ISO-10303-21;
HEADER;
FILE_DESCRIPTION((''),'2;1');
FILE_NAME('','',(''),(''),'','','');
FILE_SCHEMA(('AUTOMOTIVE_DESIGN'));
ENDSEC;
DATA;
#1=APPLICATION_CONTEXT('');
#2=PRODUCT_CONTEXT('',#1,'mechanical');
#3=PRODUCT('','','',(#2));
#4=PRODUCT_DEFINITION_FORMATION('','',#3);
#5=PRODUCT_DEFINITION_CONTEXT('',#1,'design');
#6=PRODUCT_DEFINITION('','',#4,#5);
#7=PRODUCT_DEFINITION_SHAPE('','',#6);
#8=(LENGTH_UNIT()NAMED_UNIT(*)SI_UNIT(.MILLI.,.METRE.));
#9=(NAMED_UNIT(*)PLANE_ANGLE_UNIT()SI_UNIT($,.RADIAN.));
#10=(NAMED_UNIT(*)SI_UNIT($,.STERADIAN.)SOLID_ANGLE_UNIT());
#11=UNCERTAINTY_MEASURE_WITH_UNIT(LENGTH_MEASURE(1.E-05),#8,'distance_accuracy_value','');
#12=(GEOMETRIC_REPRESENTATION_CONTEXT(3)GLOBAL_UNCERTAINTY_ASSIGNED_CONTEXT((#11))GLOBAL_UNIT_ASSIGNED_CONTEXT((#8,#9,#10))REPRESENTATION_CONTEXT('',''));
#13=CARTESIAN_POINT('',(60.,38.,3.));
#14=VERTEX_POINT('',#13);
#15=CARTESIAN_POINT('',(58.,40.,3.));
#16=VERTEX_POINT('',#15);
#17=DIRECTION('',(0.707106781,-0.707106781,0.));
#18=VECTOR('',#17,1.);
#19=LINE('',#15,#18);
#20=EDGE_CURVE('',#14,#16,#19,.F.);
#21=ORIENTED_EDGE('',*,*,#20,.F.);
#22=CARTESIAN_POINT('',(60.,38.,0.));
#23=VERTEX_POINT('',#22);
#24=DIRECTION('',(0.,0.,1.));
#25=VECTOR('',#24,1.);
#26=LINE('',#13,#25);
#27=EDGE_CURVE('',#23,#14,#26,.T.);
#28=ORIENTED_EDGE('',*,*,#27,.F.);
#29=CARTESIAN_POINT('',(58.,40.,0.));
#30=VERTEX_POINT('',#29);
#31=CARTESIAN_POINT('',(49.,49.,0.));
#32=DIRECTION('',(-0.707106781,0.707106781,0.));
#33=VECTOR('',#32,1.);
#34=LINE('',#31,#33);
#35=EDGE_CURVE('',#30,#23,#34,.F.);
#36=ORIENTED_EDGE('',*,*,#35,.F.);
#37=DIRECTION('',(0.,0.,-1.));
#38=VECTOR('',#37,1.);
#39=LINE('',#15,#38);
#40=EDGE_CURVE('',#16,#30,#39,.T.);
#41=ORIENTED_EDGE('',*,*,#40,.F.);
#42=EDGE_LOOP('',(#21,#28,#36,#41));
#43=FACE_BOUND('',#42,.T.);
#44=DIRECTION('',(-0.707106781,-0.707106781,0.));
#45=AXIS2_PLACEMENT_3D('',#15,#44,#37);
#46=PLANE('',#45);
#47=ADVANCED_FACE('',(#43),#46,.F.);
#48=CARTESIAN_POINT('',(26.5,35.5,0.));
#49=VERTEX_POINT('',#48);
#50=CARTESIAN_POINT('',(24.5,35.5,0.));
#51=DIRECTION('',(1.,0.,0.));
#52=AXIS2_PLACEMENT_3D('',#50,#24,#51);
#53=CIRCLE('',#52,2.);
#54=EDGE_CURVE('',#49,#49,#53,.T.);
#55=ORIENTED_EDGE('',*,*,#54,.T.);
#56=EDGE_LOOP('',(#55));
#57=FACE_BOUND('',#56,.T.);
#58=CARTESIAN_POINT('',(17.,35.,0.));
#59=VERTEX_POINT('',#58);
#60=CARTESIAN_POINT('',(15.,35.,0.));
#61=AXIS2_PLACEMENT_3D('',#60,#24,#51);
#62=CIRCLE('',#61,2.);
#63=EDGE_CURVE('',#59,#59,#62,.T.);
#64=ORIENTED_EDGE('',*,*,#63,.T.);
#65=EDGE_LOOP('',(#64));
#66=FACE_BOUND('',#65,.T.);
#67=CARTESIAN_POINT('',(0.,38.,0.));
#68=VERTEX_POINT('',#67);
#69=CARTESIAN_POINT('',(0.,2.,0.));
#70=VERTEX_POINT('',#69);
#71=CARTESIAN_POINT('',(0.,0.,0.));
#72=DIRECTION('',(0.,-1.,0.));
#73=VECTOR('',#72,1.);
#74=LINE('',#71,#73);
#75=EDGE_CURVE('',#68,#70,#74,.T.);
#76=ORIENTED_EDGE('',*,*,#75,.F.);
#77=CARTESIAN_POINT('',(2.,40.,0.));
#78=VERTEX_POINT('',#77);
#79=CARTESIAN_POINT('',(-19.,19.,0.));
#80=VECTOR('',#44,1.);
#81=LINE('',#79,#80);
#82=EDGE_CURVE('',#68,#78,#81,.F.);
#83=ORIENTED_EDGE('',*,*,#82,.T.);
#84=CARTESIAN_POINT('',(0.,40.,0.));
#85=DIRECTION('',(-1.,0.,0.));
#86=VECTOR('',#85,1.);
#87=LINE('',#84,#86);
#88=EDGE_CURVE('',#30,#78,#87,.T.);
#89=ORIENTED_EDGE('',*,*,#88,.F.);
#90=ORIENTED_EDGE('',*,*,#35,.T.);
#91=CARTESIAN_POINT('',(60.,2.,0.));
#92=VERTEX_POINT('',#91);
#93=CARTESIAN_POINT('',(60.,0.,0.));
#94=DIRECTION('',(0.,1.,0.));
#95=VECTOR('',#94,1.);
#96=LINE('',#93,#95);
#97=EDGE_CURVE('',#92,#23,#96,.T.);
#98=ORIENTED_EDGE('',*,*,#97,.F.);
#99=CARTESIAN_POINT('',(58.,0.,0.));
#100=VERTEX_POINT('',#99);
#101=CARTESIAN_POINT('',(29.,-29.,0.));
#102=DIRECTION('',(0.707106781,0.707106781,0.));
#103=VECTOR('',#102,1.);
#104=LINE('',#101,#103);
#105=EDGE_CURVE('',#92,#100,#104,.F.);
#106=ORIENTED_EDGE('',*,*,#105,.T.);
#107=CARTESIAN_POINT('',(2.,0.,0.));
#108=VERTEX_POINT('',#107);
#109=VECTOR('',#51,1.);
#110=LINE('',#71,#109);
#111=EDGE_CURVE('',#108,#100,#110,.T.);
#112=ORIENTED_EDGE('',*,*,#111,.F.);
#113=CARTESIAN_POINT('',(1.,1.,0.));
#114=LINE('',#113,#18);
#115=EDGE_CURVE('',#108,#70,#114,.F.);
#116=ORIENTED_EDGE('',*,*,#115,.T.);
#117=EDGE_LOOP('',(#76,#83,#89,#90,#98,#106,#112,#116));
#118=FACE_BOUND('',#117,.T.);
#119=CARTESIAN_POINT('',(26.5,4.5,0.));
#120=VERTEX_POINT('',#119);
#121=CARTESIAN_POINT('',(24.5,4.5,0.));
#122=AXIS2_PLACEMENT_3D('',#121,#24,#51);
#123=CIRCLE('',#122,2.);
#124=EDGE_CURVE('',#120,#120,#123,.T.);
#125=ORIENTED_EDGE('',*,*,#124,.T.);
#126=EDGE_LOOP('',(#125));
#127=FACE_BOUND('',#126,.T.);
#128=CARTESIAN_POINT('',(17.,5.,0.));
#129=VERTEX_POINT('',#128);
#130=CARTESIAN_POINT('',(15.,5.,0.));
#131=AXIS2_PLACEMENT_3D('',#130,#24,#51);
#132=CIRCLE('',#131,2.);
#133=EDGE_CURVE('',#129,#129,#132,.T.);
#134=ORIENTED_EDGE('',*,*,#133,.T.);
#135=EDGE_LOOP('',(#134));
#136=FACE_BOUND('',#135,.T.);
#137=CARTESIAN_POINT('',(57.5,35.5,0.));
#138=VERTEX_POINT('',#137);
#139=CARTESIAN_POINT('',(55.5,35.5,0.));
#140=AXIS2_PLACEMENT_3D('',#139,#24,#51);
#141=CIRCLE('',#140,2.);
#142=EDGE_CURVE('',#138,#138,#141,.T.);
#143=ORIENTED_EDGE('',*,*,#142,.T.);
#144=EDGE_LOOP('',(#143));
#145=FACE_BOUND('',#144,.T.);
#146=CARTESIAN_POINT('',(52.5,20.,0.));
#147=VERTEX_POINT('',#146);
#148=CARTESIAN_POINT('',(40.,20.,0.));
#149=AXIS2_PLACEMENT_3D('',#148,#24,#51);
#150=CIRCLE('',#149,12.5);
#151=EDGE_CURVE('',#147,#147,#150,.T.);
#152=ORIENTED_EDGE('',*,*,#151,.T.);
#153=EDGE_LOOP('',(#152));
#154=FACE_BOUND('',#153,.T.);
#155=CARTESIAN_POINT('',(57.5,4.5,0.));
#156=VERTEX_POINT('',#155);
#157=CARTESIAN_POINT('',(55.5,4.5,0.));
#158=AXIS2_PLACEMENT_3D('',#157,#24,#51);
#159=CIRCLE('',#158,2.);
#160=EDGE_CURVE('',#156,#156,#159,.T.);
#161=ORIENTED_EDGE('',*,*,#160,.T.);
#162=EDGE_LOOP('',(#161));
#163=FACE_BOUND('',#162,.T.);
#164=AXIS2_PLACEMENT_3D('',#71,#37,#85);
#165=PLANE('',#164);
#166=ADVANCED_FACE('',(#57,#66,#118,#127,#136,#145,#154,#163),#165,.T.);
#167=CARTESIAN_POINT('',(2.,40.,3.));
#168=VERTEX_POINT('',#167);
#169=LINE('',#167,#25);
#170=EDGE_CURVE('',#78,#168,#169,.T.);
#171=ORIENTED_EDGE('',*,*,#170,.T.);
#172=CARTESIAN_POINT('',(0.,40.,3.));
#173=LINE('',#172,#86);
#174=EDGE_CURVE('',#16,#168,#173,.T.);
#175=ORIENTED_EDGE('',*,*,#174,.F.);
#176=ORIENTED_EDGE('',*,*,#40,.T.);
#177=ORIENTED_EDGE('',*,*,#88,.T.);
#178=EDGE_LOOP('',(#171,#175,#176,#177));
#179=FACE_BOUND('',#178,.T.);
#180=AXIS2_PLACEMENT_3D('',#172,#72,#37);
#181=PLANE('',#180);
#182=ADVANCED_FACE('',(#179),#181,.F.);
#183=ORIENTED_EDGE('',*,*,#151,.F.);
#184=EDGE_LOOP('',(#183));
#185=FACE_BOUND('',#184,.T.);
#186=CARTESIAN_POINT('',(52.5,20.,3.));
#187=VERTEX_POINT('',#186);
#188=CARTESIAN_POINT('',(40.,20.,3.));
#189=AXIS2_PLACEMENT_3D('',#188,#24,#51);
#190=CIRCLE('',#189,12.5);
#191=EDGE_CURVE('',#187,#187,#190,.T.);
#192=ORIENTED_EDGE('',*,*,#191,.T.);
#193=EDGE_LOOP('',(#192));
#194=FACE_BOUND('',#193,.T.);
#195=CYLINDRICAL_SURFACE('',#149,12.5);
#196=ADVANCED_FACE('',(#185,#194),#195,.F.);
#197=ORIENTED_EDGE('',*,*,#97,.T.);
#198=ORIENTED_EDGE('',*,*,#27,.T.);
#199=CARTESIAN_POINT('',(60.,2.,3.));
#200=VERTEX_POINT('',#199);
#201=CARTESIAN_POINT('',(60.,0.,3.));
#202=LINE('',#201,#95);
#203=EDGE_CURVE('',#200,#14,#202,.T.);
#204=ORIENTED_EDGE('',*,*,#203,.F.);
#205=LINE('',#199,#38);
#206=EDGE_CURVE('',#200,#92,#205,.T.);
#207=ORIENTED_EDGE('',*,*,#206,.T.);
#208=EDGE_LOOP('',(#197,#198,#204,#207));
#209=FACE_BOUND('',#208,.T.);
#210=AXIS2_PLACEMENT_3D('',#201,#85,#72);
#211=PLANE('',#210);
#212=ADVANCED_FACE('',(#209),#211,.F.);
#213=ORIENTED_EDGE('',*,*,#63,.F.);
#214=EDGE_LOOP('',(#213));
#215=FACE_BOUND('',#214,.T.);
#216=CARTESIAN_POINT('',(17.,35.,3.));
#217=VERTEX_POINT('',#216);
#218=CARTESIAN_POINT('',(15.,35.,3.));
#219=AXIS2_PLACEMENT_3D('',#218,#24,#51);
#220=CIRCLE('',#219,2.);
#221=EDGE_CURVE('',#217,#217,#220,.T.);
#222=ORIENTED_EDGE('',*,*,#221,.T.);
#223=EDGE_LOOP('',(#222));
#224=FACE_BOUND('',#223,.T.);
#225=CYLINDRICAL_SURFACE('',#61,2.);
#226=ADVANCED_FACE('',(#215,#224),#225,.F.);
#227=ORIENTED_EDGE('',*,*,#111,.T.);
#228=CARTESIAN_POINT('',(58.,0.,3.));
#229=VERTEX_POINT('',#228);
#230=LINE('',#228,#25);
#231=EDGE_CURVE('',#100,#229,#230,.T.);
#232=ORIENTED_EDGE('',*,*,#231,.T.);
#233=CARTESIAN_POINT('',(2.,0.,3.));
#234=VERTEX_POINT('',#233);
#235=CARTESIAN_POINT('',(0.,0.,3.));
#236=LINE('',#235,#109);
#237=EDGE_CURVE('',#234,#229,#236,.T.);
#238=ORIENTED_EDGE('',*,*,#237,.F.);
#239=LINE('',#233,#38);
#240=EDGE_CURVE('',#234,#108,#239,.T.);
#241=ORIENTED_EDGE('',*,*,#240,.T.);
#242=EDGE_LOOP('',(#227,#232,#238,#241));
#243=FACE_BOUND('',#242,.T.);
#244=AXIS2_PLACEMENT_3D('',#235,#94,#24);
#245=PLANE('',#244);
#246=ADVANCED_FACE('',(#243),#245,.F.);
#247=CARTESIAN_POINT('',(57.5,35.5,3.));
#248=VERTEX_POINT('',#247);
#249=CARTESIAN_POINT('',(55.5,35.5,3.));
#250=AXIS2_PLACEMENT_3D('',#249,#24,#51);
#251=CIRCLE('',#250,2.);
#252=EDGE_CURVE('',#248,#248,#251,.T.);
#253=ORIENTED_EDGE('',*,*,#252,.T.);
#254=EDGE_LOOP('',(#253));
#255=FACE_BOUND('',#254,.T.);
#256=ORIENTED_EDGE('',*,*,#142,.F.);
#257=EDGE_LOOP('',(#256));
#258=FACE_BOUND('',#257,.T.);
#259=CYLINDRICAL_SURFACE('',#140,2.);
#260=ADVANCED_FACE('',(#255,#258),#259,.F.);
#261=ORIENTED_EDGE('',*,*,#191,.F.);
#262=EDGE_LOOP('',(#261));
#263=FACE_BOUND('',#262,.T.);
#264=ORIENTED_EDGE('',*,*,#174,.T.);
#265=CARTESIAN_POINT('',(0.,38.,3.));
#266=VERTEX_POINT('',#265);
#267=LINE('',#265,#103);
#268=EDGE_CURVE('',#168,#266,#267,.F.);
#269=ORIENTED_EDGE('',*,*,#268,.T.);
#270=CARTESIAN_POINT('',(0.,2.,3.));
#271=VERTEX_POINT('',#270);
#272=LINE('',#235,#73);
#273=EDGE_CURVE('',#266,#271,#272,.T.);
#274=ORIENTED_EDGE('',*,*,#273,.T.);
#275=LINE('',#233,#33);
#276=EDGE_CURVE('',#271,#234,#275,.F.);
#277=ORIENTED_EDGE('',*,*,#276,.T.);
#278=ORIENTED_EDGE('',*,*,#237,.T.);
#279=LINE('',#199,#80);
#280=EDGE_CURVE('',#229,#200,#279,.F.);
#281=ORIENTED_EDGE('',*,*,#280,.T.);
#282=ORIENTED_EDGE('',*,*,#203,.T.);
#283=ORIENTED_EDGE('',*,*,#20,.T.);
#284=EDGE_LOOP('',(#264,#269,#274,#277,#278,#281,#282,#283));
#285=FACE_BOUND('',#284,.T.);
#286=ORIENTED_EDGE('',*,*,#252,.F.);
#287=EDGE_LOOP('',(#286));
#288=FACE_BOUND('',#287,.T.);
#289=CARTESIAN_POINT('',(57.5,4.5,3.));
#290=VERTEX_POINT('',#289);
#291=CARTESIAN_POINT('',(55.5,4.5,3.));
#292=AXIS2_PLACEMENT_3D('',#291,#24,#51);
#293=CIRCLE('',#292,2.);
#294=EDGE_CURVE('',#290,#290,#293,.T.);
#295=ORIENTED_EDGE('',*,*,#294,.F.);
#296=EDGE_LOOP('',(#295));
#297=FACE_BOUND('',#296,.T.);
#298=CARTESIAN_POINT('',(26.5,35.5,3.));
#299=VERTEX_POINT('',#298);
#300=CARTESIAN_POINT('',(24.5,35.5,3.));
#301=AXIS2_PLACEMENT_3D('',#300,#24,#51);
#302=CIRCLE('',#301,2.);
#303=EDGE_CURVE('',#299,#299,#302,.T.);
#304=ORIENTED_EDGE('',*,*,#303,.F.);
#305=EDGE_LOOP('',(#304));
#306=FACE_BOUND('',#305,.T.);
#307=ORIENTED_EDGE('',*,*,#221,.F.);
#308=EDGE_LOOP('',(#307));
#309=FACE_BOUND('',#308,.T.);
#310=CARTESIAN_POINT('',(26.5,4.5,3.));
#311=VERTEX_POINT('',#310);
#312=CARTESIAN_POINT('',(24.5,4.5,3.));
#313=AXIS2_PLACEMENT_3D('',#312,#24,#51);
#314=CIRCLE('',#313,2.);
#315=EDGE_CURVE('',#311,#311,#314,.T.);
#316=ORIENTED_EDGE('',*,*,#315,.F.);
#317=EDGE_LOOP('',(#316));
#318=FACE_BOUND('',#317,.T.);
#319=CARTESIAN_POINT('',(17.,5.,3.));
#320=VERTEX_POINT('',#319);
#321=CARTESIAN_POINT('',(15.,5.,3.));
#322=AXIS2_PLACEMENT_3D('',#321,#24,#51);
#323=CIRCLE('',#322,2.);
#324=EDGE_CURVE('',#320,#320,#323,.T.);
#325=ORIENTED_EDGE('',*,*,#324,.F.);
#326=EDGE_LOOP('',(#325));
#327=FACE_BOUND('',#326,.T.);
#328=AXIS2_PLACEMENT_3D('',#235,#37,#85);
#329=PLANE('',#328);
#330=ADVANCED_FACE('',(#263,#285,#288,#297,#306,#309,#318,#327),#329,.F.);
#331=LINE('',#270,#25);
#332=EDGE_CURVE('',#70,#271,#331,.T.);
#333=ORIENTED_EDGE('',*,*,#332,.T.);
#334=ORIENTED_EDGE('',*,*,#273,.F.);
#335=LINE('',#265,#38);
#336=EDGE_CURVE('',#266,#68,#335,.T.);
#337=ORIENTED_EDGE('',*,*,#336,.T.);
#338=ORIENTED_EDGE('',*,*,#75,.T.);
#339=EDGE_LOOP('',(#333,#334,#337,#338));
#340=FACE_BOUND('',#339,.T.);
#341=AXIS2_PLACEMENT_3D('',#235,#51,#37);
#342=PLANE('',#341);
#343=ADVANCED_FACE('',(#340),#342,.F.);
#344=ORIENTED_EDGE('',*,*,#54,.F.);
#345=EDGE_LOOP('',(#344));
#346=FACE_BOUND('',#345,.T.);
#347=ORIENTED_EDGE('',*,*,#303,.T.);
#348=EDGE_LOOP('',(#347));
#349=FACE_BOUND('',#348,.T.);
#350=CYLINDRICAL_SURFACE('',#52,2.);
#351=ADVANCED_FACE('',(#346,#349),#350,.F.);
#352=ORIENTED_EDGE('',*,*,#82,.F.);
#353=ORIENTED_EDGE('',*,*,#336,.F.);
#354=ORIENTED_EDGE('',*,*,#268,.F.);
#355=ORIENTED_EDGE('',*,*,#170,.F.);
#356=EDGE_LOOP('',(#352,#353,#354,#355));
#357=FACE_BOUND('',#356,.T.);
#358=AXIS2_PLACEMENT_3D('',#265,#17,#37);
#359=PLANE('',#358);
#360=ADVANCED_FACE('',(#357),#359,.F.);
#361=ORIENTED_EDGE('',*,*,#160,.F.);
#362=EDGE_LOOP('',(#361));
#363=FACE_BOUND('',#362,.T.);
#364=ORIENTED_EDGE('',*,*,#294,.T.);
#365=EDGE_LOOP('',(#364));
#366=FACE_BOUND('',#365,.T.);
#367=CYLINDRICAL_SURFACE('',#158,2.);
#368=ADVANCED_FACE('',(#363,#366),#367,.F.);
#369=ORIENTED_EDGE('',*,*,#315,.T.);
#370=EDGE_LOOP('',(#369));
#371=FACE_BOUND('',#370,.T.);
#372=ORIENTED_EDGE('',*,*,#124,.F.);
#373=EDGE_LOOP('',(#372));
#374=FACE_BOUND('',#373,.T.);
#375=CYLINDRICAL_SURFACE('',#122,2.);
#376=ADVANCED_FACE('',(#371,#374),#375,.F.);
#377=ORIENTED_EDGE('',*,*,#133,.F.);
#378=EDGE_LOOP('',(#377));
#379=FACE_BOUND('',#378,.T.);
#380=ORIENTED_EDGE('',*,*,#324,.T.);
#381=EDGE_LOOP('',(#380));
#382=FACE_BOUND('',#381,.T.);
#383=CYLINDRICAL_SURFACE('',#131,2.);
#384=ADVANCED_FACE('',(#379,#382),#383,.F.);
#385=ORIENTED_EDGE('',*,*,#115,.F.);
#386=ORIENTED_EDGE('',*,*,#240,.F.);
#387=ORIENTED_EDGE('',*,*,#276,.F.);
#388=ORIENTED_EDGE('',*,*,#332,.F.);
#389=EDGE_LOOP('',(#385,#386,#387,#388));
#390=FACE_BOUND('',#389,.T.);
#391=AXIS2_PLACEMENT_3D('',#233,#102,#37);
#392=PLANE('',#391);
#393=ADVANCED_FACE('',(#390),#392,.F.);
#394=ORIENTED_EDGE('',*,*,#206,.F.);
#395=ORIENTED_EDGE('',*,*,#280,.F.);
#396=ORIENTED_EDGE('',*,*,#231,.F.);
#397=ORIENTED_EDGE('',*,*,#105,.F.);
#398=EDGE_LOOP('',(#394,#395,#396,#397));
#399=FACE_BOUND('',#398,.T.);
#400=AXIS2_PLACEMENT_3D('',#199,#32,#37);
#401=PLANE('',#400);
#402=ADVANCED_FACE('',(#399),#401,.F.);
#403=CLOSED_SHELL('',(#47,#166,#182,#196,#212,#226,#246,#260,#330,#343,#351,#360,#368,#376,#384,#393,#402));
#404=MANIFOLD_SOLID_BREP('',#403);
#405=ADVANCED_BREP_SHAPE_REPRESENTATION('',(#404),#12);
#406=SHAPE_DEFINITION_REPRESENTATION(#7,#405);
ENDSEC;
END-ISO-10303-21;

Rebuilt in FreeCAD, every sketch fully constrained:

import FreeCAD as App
import Part
import Sketcher

V = App.Vector
Q = App.Units.Quantity


def edges_at(feature, points):
    """Names of the edges that pass closest to the given points."""
    edges = feature.Shape.Edges
    near = lambda p: min(range(len(edges)), key=lambda i: edges[i].distToShape(Part.Vertex(*p))[0])
    return sorted({f"Edge{near(p) + 1}" for p in points})


def add_polygon(sketch, points):
    """Adds a closed chain of lines whose ends are joined by coincident constraints."""
    first, n = sketch.GeometryCount, len(points)
    for a, b in zip(points, points[1:] + points[:1]):
        sketch.addGeometry(Part.LineSegment(App.Vector(*a, 0), App.Vector(*b, 0)), False)
    for i in range(n):
        sketch.addConstraint(Sketcher.Constraint("Coincident", first + i, 2, first + (i + 1) % n, 1))

doc = App.newDocument("Part")
params = doc.addObject("Spreadsheet::Sheet", "Params")
for row, (alias, value) in enumerate([
    ("sketch1_width", "60 mm"),
    ("sketch1_height", "40 mm"),
    ("pad1_length", "3 mm"),
    ("sketch2_diameter", "4 mm"),
    ("sketch2_diameter2", "25 mm"),
    ("chamfer_size", "2 mm"),
], start=1):
    params.set(f"A{row}", alias)
    params.set(f"B{row}", "=" + value)
    params.setAlias(f"B{row}", alias)

body = doc.addObject("PartDesign::Body", "Body")

# Sketch on XY plane
sketch1 = body.newObject("Sketcher::SketchObject", "Sketch")
sketch1.AttachmentSupport = (doc.getObject("XY_Plane"), [""])
sketch1.MapMode = "FlatFace"
add_polygon(sketch1, [(0, 40), (0, 0), (60, 0), (60, 40)])  # lines 0-3
sketch1.addConstraint(Sketcher.Constraint("Vertical", 0))
sketch1.addConstraint(Sketcher.Constraint("Horizontal", 1))
sketch1.addConstraint(Sketcher.Constraint("Vertical", 2))
sketch1.addConstraint(Sketcher.Constraint("Horizontal", 3))
sketch1.addConstraint(Sketcher.Constraint("Coincident", 0, 2, -1, 1))
sketch1.addConstraint(Sketcher.Constraint("DistanceX", 1, 1, 1, 2, Q("60 mm")))
sketch1.addConstraint(Sketcher.Constraint("DistanceY", 0, 2, 0, 1, Q("40 mm")))
sketch1.setExpression("Constraints[9]", "Params.sketch1_width")
sketch1.setExpression("Constraints[10]", "Params.sketch1_height")
pad1 = body.newObject("PartDesign::Pad", "Pad")
pad1.Profile = sketch1
pad1.setExpression("Length", "Params.pad1_length")

# Sketch on XY plane
sketch2 = body.newObject("Sketcher::SketchObject", "Sketch001")
sketch2.AttachmentSupport = (doc.getObject("XY_Plane"), [""])
sketch2.MapMode = "FlatFace"
sketch2.AttachmentOffset = App.Placement(V(0, 0, 3), App.Rotation())
sketch2.addGeometry(Part.Circle(V(24.5, 35.5, 0), V(0, 0, 1), 2), False)
sketch2.addGeometry(Part.Circle(V(55.5, 35.5, 0), V(0, 0, 1), 2), False)
sketch2.addGeometry(Part.Circle(V(55.5, 4.5, 0), V(0, 0, 1), 2), False)
sketch2.addGeometry(Part.Circle(V(24.5, 4.5, 0), V(0, 0, 1), 2), False)
sketch2.addGeometry(Part.Circle(V(40, 20, 0), V(0, 0, 1), 12.5), False)
sketch2.addGeometry(Part.Circle(V(15, 35, 0), V(0, 0, 1), 2), False)
sketch2.addGeometry(Part.Circle(V(15, 5, 0), V(0, 0, 1), 2), False)
sketch2.addConstraint(Sketcher.Constraint("Equal", 0, 1))
sketch2.addConstraint(Sketcher.Constraint("Equal", 1, 2))
sketch2.addConstraint(Sketcher.Constraint("Equal", 2, 3))
sketch2.addConstraint(Sketcher.Constraint("Equal", 3, 5))
sketch2.addConstraint(Sketcher.Constraint("Equal", 5, 6))
sketch2.addConstraint(Sketcher.Constraint("Horizontal", 0, 3, 1, 3))
sketch2.addConstraint(Sketcher.Constraint("Horizontal", 2, 3, 3, 3))
sketch2.addConstraint(Sketcher.Constraint("Vertical", 1, 3, 2, 3))
sketch2.addConstraint(Sketcher.Constraint("Vertical", 0, 3, 3, 3))
sketch2.addConstraint(Sketcher.Constraint("Vertical", 5, 3, 6, 3))
sketch2.addConstraint(Sketcher.Constraint("Diameter", 0, Q("4 mm")))
sketch2.addConstraint(Sketcher.Constraint("Diameter", 4, Q("25 mm")))
sketch2.addConstraint(Sketcher.Constraint("DistanceX", -1, 1, 4, 3, Q("40 mm")))
sketch2.addConstraint(Sketcher.Constraint("DistanceY", -1, 1, 4, 3, Q("20 mm")))
sketch2.addConstraint(Sketcher.Constraint("DistanceX", -1, 1, 5, 3, Q("15 mm")))
sketch2.addConstraint(Sketcher.Constraint("DistanceY", -1, 1, 5, 3, Q("35 mm")))
sketch2.addConstraint(Sketcher.Constraint("DistanceY", -1, 1, 6, 3, Q("5 mm")))
sketch2.addConstraint(Sketcher.Constraint("DistanceX", 0, 3, 1, 3, Q("31 mm")))
sketch2.addConstraint(Sketcher.Constraint("DistanceY", 2, 3, 1, 3, Q("31 mm")))
sketch2.addConstraint(Sketcher.Constraint("DistanceX", -1, 1, 0, 3, Q("24.5 mm")))
sketch2.addConstraint(Sketcher.Constraint("DistanceY", -1, 1, 0, 3, Q("35.5 mm")))
sketch2.setExpression("Constraints[10]", "Params.sketch2_diameter")
sketch2.setExpression("Constraints[11]", "Params.sketch2_diameter2")
pocket1 = body.newObject("PartDesign::Pocket", "Pocket")
pocket1.Profile = sketch2
pocket1.Type = "ThroughAll"
doc.recompute()

chamfer = body.newObject("PartDesign::Chamfer", "Chamfer")
chamfer.Base = (pocket1, edges_at(pocket1, [
    (0, 40, 1.5),
    (60, 40, 1.5),
    (60, 0, 1.5),
    (0, 0, 1.5),
]))
chamfer.setExpression("Size", "Params.chamfer_size")

doc.recompute()
